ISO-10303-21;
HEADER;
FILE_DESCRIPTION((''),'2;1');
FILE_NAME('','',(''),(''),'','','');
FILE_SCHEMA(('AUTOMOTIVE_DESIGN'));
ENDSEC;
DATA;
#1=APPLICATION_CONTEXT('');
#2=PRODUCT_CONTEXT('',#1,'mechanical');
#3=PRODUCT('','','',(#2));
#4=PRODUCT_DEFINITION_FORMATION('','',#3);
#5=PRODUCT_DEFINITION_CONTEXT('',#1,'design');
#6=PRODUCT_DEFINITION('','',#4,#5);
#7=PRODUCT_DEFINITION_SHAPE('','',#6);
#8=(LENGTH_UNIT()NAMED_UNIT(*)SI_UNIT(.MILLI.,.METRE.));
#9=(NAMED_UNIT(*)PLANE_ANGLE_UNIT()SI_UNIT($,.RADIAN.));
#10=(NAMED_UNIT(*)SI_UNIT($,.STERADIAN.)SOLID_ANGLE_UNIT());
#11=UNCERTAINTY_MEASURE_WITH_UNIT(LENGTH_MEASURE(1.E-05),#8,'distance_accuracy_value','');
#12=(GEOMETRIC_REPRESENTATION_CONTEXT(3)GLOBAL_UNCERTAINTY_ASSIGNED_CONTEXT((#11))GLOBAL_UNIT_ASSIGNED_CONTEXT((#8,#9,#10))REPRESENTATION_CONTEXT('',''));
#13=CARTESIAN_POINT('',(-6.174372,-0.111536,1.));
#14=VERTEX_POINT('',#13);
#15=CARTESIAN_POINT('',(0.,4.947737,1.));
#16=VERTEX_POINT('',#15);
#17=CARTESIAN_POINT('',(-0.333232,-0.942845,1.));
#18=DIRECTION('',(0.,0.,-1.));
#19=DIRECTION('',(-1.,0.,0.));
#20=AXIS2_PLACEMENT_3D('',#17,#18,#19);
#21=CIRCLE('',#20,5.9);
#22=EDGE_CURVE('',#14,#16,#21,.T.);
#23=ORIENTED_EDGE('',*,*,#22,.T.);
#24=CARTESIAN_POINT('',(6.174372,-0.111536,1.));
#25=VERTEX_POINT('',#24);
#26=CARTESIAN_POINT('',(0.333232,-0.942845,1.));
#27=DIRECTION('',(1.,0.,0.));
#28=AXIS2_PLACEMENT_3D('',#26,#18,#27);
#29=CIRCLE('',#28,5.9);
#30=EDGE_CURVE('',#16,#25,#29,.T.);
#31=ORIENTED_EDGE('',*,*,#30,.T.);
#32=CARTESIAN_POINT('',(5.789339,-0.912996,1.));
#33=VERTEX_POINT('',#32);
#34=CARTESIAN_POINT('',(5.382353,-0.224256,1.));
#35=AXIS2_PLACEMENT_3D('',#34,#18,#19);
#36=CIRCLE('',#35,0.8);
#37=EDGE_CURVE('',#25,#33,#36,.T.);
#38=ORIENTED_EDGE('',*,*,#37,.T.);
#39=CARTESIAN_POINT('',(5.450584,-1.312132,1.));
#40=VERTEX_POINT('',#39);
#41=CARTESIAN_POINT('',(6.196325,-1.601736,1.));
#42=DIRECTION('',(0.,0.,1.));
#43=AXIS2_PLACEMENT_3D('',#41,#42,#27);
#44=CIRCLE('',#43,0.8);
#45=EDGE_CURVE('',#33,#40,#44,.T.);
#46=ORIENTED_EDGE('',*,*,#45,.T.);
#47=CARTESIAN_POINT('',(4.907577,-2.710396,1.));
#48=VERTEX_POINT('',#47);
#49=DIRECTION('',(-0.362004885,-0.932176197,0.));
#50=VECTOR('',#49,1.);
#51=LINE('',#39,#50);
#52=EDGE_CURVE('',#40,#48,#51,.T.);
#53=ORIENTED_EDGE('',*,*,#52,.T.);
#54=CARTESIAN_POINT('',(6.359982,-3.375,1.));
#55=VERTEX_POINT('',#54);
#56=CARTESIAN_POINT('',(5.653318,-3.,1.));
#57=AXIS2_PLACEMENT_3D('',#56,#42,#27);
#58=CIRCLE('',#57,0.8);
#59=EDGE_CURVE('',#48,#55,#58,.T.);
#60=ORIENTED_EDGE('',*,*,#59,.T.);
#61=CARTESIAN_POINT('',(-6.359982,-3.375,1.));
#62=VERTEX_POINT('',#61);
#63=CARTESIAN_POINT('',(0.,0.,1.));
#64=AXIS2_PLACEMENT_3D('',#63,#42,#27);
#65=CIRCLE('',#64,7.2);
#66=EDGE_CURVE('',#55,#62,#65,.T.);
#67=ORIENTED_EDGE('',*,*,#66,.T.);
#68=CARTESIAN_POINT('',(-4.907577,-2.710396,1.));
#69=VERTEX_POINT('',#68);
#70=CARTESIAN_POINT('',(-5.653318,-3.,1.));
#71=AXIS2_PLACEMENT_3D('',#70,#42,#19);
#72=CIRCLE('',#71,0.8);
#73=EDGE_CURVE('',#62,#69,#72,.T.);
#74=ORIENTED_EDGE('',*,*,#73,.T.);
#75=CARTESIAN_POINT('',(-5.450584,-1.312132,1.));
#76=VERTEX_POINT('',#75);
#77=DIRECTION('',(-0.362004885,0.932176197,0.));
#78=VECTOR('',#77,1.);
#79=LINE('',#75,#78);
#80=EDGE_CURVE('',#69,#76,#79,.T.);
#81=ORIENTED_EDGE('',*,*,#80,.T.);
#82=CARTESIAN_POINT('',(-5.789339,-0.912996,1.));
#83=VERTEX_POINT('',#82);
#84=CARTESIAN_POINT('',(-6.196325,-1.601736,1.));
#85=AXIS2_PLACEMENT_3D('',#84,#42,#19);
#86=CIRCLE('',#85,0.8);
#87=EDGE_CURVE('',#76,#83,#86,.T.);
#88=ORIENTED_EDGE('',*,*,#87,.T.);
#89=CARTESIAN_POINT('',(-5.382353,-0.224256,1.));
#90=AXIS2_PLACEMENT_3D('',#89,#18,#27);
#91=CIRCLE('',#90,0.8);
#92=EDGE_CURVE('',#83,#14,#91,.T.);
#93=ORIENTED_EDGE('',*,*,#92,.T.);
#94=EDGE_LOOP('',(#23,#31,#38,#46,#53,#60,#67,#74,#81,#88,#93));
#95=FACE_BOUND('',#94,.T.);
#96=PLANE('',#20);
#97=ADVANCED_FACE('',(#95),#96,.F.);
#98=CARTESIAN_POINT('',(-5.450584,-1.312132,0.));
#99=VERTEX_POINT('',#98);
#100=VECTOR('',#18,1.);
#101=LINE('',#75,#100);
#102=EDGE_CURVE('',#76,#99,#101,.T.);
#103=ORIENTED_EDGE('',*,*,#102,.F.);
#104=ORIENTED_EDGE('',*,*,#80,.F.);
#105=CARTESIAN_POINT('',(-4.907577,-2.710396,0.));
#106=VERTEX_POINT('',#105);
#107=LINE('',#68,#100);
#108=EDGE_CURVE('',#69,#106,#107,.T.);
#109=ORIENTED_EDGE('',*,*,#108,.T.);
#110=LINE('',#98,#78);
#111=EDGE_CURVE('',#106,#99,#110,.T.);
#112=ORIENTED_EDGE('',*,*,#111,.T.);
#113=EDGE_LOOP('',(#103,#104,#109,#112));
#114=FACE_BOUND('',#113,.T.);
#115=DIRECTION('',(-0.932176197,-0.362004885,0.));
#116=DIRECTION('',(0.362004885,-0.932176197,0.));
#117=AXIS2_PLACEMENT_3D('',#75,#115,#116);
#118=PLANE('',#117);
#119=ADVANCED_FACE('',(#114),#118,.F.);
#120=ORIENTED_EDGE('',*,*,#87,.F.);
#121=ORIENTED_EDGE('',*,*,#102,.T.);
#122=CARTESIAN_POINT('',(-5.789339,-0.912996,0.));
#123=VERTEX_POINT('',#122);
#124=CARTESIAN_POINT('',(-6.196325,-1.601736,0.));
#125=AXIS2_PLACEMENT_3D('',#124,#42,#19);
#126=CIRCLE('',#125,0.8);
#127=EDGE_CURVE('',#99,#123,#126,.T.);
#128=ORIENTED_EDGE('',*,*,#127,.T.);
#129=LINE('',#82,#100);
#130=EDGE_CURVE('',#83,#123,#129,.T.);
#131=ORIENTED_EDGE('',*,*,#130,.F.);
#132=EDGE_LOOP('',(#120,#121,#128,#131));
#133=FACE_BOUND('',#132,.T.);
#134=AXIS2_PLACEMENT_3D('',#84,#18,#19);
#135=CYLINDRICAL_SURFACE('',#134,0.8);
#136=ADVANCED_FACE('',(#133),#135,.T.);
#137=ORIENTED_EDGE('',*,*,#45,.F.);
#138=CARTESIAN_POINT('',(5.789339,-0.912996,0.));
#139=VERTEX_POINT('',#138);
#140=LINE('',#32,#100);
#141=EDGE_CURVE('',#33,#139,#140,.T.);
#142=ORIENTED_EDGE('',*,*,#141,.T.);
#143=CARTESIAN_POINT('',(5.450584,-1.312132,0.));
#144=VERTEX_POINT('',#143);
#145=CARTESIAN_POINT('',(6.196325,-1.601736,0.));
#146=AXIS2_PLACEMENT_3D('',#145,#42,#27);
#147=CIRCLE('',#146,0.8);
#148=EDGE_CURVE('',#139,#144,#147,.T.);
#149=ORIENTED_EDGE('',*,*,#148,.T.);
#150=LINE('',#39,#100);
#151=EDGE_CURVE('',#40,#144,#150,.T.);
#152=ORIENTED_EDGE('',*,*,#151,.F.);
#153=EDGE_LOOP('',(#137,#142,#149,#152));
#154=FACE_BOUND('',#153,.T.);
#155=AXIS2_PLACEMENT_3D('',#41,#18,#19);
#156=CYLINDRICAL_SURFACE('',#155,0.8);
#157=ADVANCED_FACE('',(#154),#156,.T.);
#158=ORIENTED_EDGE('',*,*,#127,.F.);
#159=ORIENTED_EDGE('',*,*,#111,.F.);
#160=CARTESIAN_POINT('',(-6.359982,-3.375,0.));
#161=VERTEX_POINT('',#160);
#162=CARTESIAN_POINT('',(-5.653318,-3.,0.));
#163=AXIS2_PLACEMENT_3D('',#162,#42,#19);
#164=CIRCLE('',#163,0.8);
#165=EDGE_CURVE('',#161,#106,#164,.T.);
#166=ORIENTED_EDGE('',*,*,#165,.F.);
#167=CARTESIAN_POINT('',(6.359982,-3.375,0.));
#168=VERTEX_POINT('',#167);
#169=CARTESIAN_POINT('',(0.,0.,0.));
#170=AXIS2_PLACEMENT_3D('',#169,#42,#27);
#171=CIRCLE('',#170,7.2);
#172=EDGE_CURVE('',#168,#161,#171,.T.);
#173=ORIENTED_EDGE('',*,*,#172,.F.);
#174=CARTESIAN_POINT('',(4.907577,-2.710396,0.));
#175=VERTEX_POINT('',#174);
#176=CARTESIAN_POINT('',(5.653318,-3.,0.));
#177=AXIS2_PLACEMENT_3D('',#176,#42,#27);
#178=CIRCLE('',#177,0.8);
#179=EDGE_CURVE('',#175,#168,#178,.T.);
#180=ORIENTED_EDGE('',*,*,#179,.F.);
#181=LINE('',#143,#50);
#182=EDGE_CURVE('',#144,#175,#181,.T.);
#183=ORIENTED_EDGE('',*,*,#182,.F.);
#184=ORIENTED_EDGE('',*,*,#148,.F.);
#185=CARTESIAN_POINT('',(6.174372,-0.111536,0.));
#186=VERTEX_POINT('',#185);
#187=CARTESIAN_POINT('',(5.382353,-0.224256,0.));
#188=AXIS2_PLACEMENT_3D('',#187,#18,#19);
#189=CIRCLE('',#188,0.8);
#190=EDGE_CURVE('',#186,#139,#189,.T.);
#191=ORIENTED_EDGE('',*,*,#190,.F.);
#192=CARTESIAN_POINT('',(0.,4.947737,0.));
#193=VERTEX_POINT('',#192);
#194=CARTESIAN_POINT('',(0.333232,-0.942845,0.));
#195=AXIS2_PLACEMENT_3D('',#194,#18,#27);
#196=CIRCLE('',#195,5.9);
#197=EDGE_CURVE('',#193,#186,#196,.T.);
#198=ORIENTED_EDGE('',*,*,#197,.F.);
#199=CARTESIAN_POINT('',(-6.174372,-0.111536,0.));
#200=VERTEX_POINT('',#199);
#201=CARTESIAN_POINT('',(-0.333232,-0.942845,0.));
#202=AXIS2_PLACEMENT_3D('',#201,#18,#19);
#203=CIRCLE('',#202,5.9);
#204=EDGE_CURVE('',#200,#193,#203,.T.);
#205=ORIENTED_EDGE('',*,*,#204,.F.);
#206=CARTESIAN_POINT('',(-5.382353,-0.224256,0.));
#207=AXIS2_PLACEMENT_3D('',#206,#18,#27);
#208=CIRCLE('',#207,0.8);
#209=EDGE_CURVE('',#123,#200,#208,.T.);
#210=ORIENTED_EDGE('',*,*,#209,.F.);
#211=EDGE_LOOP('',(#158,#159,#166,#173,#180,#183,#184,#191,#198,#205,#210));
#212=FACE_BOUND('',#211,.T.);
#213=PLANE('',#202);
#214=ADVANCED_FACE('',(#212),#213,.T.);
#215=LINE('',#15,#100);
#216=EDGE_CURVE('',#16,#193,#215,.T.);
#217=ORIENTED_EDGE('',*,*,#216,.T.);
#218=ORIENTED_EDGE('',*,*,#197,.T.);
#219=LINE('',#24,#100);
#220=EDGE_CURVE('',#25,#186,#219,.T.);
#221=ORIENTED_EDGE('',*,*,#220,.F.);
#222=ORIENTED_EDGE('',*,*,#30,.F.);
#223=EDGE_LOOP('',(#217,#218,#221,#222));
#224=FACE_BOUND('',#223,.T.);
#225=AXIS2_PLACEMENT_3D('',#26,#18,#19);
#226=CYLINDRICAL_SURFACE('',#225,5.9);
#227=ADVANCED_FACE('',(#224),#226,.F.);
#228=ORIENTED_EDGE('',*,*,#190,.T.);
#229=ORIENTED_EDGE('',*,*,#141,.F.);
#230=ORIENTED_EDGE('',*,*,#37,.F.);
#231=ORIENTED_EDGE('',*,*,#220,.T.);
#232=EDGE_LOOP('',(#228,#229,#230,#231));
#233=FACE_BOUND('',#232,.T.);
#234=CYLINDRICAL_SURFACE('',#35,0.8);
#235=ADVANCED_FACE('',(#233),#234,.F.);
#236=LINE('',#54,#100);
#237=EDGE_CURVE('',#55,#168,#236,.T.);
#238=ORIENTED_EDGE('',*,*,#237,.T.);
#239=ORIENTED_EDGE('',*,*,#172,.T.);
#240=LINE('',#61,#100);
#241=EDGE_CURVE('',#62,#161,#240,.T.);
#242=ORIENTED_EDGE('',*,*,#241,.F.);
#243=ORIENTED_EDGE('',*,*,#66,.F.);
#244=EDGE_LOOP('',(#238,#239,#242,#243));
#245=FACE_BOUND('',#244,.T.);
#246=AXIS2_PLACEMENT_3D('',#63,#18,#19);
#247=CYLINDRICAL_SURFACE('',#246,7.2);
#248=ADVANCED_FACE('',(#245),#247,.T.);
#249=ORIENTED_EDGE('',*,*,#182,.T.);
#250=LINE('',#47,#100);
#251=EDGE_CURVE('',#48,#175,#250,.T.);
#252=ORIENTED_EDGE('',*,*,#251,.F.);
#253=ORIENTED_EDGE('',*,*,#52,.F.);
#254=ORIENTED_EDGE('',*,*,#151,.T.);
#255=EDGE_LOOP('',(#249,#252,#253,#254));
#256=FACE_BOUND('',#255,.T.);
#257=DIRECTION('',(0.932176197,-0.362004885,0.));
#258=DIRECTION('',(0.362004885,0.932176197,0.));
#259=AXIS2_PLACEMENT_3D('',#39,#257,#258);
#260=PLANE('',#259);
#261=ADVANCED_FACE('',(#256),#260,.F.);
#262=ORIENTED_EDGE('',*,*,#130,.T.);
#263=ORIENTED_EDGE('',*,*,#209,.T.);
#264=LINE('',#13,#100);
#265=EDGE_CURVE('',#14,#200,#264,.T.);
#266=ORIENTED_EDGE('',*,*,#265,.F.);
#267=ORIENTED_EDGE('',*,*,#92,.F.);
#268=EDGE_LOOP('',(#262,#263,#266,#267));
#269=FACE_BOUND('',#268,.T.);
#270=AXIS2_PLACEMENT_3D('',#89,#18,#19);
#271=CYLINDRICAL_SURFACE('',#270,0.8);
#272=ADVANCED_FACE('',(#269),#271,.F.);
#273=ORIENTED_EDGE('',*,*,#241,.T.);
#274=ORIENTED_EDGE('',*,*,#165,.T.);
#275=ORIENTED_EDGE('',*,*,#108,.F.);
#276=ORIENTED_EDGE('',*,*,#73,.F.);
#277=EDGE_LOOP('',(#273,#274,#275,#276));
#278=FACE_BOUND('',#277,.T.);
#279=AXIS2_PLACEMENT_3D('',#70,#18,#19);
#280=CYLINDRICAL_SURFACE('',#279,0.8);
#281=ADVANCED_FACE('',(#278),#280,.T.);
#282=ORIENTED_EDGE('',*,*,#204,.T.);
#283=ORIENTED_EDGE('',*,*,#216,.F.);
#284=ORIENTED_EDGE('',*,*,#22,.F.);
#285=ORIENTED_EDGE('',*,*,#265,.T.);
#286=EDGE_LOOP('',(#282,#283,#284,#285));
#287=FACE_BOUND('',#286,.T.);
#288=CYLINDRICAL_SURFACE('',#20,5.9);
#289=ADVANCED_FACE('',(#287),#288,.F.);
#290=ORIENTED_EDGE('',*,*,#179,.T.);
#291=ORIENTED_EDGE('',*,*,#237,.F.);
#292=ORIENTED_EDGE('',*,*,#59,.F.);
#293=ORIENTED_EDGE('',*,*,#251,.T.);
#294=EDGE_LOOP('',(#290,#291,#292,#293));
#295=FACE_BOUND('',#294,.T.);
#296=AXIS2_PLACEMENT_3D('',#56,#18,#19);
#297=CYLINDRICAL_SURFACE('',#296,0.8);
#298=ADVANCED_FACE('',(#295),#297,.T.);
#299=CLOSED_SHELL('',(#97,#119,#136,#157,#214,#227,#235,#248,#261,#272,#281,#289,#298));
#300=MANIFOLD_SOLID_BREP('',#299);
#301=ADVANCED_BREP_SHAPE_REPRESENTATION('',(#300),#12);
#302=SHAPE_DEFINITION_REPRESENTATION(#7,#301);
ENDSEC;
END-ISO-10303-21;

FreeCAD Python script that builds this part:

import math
import FreeCAD as App
import Part
import Sketcher
Q = App.Units.Quantity

doc = App.newDocument("Part")
body = doc.addObject("PartDesign::Body", "Body")

# Sketch on XY plane
sketch1 = body.newObject("Sketcher::SketchObject", "Sketch")
sketch1.AttachmentSupport = (doc.getObject("XY_Plane"), [""])
sketch1.MapMode = "FlatFace"
sketch1.addGeometry([
    Part.LineSegment(App.Vector(5.450584, -1.312132, 0), App.Vector(4.907577, -2.710396, 0)),  # 0
    Part.ArcOfCircle(Part.Circle(App.Vector(5.653318, -3, 0), App.Vector(0, 0, 1), 0.8), math.radians(158.776626), math.radians(332.046813)),  # 1
    Part.ArcOfCircle(Part.Circle(App.Vector(0, 0, 0), App.Vector(0, 0, 1), 7.2), math.radians(-27.953187), math.radians(207.953187)),  # 2
    Part.ArcOfCircle(Part.Circle(App.Vector(-5.653318, -3, 0), App.Vector(0, 0, 1), 0.8), math.radians(-152.046813), math.radians(21.223374)),  # 3
    Part.LineSegment(App.Vector(-4.907577, -2.710396, 0), App.Vector(-5.450584, -1.312132, 0)),  # 4
    Part.ArcOfCircle(Part.Circle(App.Vector(-6.196325, -1.601736, 0), App.Vector(0, 0, 1), 0.8), math.radians(21.223374), math.radians(59.420577)),  # 5
    Part.ArcOfCircle(Part.Circle(App.Vector(-5.382353, -0.224256, 0), App.Vector(0, 0, 1), 0.8), math.radians(171.900083), math.radians(239.420578)),  # 6
    Part.ArcOfCircle(Part.Circle(App.Vector(-0.333232, -0.942845, 0), App.Vector(0, 0, 1), 5.9), math.radians(86.762215), math.radians(171.900083)),  # 7
    Part.ArcOfCircle(Part.Circle(App.Vector(0.333232, -0.942845, 0), App.Vector(0, 0, 1), 5.9), math.radians(8.099917), math.radians(93.237785)),  # 8
    Part.ArcOfCircle(Part.Circle(App.Vector(5.382353, -0.224256, 0), App.Vector(0, 0, 1), 0.8), math.radians(-59.420578), math.radians(8.099917)),  # 9
    Part.ArcOfCircle(Part.Circle(App.Vector(6.196325, -1.601736, 0), App.Vector(0, 0, 1), 0.8), math.radians(120.579423), math.radians(158.776626)),  # 10
], False)
sketch1.addConstraint([
    Sketcher.Constraint("Tangent", 0, 2, 1, 1),
    Sketcher.Constraint("Tangent", 1, 2, 2, 1),
    Sketcher.Constraint("Tangent", 2, 2, 3, 1),
    Sketcher.Constraint("Tangent", 3, 2, 4, 1),
    Sketcher.Constraint("Tangent", 4, 2, 5, 1),
    Sketcher.Constraint("Tangent", 5, 2, 6, 2),
    Sketcher.Constraint("Tangent", 6, 1, 7, 2),
    Sketcher.Constraint("Coincident", 7, 1, 8, 2),
    Sketcher.Constraint("Tangent", 8, 1, 9, 2),
    Sketcher.Constraint("Tangent", 9, 1, 10, 1),
    Sketcher.Constraint("Tangent", 10, 2, 0, 1),
    Sketcher.Constraint("Coincident", 2, 3, -1, 1),
    Sketcher.Constraint("Equal", 1, 3),
    Sketcher.Constraint("Equal", 3, 5),
    Sketcher.Constraint("Equal", 5, 6),
    Sketcher.Constraint("Equal", 7, 8),
    Sketcher.Constraint("Equal", 6, 9),
    Sketcher.Constraint("Equal", 9, 10),
    Sketcher.Constraint("Symmetric", 7, 3, 8, 3, -2),
    Sketcher.Constraint("Symmetric", 5, 3, 10, 3, -2),
    Sketcher.Constraint("Horizontal", 1, 3, 3, 3),
    Sketcher.Constraint("Radius", 1, Q("0.8 mm")),
    Sketcher.Constraint("Radius", 2, Q("7.2 mm")),
    Sketcher.Constraint("Radius", 7, Q("5.9 mm")),
    Sketcher.Constraint("DistanceY", 1, 3, -1, 1, Q("3 mm")),
    Sketcher.Constraint("Distance", 0, Q("1.5 mm")),
    Sketcher.Constraint("DistanceX", 2, 2, 4, 2, Q("0.909398 mm")),
    Sketcher.Constraint("DistanceY", 3, 2, 5, 2, Q("1.7974 mm")),
    Sketcher.Constraint("DistanceY", 5, 3, 6, 1, Q("1.4902 mm")),
])
pad1 = body.newObject("PartDesign::Pad", "Pad")
pad1.Profile = sketch1
pad1.Length = 1

doc.recompute()
